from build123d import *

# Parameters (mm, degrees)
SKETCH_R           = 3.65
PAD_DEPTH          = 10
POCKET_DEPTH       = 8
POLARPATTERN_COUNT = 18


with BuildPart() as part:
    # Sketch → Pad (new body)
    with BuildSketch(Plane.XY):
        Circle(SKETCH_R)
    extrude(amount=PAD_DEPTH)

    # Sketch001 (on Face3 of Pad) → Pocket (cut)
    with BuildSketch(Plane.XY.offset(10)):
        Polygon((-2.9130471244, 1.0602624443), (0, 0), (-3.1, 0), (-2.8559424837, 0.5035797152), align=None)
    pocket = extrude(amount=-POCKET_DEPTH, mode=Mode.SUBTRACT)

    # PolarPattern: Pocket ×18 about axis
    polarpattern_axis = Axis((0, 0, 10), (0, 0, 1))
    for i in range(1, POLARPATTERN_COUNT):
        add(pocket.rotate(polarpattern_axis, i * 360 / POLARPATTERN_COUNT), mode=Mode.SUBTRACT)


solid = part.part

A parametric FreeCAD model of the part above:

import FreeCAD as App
import Part
import Sketcher
Q = App.Units.Quantity

doc = App.newDocument("Part")
body = doc.addObject("PartDesign::Body", "Body")

sketch1 = body.newObject("Sketcher::SketchObject", "Sketch")
sketch1.AttachmentSupport = (doc.getObject("XY_Plane"), [""])
sketch1.MapMode = "FlatFace"
sketch1.addGeometry(Part.Circle(App.Vector(0, 0, 0), App.Vector(0, 0, 1), 3.65), False)
sketch1.addConstraint(Sketcher.Constraint("Coincident", 0, 3, -1, 1))
sketch1.addConstraint(Sketcher.Constraint("Diameter", 0, Q("7.3 mm")))
pad1 = body.newObject("PartDesign::Pad", "Pad")
pad1.Profile = sketch1
pad1.Length = 10

sketch2 = body.newObject("Sketcher::SketchObject", "Sketch001")
sketch2.AttachmentSupport = (doc.getObject("XY_Plane"), [""])
sketch2.MapMode = "FlatFace"
sketch2.AttachmentOffset = App.Placement(App.Vector(0, 0, 10), App.Rotation())
sketch2.addGeometry(Part.LineSegment(App.Vector(0, 0, 0), App.Vector(-2.913047, 1.060262, 0)), False)
sketch2.addGeometry(Part.LineSegment(App.Vector(-2.913047, 1.060262, 0), App.Vector(-2.855942, 0.50358, 0)), False)
sketch2.addGeometry(Part.LineSegment(App.Vector(-2.855942, 0.50358, 0), App.Vector(-3.1, 0, 0)), False)
sketch2.addGeometry(Part.LineSegment(App.Vector(-3.1, 0, 0), App.Vector(0, 0, 0)), False)
sketch2.addConstraint(Sketcher.Constraint("Coincident", 0, 2, 1, 1))
sketch2.addConstraint(Sketcher.Constraint("Coincident", 1, 2, 2, 1))
sketch2.addConstraint(Sketcher.Constraint("Coincident", 2, 2, 3, 1))
sketch2.addConstraint(Sketcher.Constraint("Coincident", 3, 2, 0, 1))
sketch2.addConstraint(Sketcher.Constraint("Horizontal", 3))
sketch2.addConstraint(Sketcher.Constraint("Coincident", 3, 2, -1, 1))
sketch2.addConstraint(Sketcher.Constraint("Equal", 1, 2))
sketch2.addConstraint(Sketcher.Constraint("Angle", 0, Q("160 deg")))
sketch2.addConstraint(Sketcher.Constraint("DistanceX", 3, 1, 3, 2, Q("3.1 mm")))
sketch2.addConstraint(Sketcher.Constraint("Distance", 0, Q("3.1 mm")))
sketch2.addConstraint(Sketcher.Constraint("DistanceY", -1, 1, 1, 2, Q("0.50358 mm")))
pocket1 = body.newObject("PartDesign::Pocket", "Pocket")
pocket1.Profile = sketch2
pocket1.Length = 8
doc.recompute()

polarpattern = body.newObject("PartDesign::PolarPattern", "PolarPattern")
polarpattern.Originals = [pocket1]
polarpattern.Axis = (doc.getObject("Z_Axis"), [""])
polarpattern.Angle = 360
polarpattern.Occurrences = 18
body.Tip = polarpattern

doc.recompute()
